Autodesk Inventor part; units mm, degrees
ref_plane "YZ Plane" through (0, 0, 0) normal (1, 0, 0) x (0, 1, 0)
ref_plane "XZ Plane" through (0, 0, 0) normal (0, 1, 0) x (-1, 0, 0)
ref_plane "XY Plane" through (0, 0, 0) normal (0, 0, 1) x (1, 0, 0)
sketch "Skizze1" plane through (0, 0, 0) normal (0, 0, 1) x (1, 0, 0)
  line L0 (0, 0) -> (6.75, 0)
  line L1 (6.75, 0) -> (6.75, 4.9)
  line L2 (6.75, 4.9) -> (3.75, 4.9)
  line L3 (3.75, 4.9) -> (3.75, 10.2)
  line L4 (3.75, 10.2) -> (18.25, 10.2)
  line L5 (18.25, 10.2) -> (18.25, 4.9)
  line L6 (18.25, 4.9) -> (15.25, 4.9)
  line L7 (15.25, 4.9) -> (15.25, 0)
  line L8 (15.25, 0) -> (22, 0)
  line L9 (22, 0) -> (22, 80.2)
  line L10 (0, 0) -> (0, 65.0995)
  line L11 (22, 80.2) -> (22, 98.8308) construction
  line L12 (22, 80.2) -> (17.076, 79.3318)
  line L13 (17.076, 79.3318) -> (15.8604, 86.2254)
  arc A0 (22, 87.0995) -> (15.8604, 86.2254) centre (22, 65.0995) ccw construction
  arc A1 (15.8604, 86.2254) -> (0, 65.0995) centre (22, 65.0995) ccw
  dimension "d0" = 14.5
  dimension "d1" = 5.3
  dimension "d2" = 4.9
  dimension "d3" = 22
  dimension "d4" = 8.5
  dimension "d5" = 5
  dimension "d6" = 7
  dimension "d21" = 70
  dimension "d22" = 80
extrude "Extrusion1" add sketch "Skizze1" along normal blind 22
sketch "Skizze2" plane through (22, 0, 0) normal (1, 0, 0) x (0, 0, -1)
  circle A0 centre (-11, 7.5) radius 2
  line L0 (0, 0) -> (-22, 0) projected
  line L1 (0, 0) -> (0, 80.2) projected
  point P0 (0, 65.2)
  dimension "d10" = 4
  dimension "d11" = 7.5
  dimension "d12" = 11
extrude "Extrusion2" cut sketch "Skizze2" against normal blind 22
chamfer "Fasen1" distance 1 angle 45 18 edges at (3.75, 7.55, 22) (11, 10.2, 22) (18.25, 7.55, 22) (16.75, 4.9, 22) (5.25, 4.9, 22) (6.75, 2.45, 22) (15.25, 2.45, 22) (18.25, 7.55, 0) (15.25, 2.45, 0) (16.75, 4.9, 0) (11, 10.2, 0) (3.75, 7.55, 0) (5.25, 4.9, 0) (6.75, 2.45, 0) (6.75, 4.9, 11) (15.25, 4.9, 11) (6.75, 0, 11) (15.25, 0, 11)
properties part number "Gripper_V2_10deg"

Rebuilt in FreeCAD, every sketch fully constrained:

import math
import FreeCAD as App
import Part
import Sketcher

V = App.Vector
Q = App.Units.Quantity


def edges_at(feature, points):
    """Names of the edges that pass closest to the given points."""
    edges = feature.Shape.Edges
    near = lambda p: min(range(len(edges)), key=lambda i: edges[i].distToShape(Part.Vertex(*p))[0])
    return sorted({f"Edge{near(p) + 1}" for p in points})

doc = App.newDocument("Part")
body = doc.addObject("PartDesign::Body", "Body")

# Sketch on XY plane
sketch1 = doc.addObject("Sketcher::SketchObject", "Sketch")
body.addObject(sketch1)
sketch1.AttachmentSupport = (doc.XY_Plane, [""])
sketch1.MapMode = "FlatFace"
sketch1.addGeometry(Part.LineSegment(V(0, 65.1, 0), V(0, 0, 0)), False)
sketch1.addGeometry(Part.LineSegment(V(0, 0, 0), V(6.8, 0, 0)), False)
sketch1.addGeometry(Part.LineSegment(V(6.8, 0, 0), V(6.8, 4.9, 0)), False)
sketch1.addGeometry(Part.LineSegment(V(6.8, 4.9, 0), V(3.8, 4.9, 0)), False)
sketch1.addGeometry(Part.LineSegment(V(3.8, 4.9, 0), V(3.8, 10.2, 0)), False)
sketch1.addGeometry(Part.LineSegment(V(3.8, 10.2, 0), V(18.2, 10.2, 0)), False)
sketch1.addGeometry(Part.LineSegment(V(18.2, 10.2, 0), V(18.2, 4.9, 0)), False)
sketch1.addGeometry(Part.LineSegment(V(18.2, 4.9, 0), V(15.2, 4.9, 0)), False)
sketch1.addGeometry(Part.LineSegment(V(15.2, 4.9, 0), V(15.2, 0, 0)), False)
sketch1.addGeometry(Part.LineSegment(V(15.2, 0, 0), V(22, 0, 0)), False)
sketch1.addGeometry(Part.LineSegment(V(22, 0, 0), V(22, 80.2, 0)), False)
sketch1.addGeometry(Part.LineSegment(V(22, 80.2, 0), V(17.1, 79.3, 0)), False)
sketch1.addGeometry(Part.LineSegment(V(17.1, 79.3, 0), V(15.9, 86.2, 0)), False)
sketch1.addGeometry(Part.ArcOfCircle(Part.Circle(V(22, 65.1, 0), V(0, 0, 1), 22), math.radians(106), math.radians(180)), False)
sketch1.addConstraint(Sketcher.Constraint("Coincident", 0, 2, 1, 1))
sketch1.addConstraint(Sketcher.Constraint("Coincident", 1, 2, 2, 1))
sketch1.addConstraint(Sketcher.Constraint("Coincident", 2, 2, 3, 1))
sketch1.addConstraint(Sketcher.Constraint("Coincident", 3, 2, 4, 1))
sketch1.addConstraint(Sketcher.Constraint("Coincident", 4, 2, 5, 1))
sketch1.addConstraint(Sketcher.Constraint("Coincident", 5, 2, 6, 1))
sketch1.addConstraint(Sketcher.Constraint("Coincident", 6, 2, 7, 1))
sketch1.addConstraint(Sketcher.Constraint("Coincident", 7, 2, 8, 1))
sketch1.addConstraint(Sketcher.Constraint("Coincident", 8, 2, 9, 1))
sketch1.addConstraint(Sketcher.Constraint("Coincident", 9, 2, 10, 1))
sketch1.addConstraint(Sketcher.Constraint("Coincident", 10, 2, 11, 1))
sketch1.addConstraint(Sketcher.Constraint("Coincident", 11, 2, 12, 1))
sketch1.addConstraint(Sketcher.Constraint("Coincident", 12, 2, 13, 1))
sketch1.addConstraint(Sketcher.Constraint("Tangent", 13, 2, 0, 1))
sketch1.addConstraint(Sketcher.Constraint("Vertical", 0))
sketch1.addConstraint(Sketcher.Constraint("Horizontal", 1))
sketch1.addConstraint(Sketcher.Constraint("Vertical", 2))
sketch1.addConstraint(Sketcher.Constraint("Horizontal", 3))
sketch1.addConstraint(Sketcher.Constraint("Vertical", 4))
sketch1.addConstraint(Sketcher.Constraint("Horizontal", 5))
sketch1.addConstraint(Sketcher.Constraint("Vertical", 6))
sketch1.addConstraint(Sketcher.Constraint("Horizontal", 7))
sketch1.addConstraint(Sketcher.Constraint("Vertical", 8))
sketch1.addConstraint(Sketcher.Constraint("Horizontal", 9))
sketch1.addConstraint(Sketcher.Constraint("Vertical", 10))
sketch1.addConstraint(Sketcher.Constraint("Coincident", 0, 2, -1, 1))
sketch1.addConstraint(Sketcher.Constraint("PointOnObject", 8, 2, -1))
sketch1.addConstraint(Sketcher.Constraint("Perpendicular", 11, 12))
sketch1.addConstraint(Sketcher.Constraint("Horizontal", 3, 2, 6, 2))
sketch1.addConstraint(Sketcher.Constraint("Vertical", 13, 3, 9, 2))
sketch1.addConstraint(Sketcher.Constraint("Equal", 3, 7))
sketch1.addConstraint(Sketcher.Constraint("Equal", 1, 9))
sketch1.addConstraint(Sketcher.Constraint("Radius", 13, 22.0))
sketch1.addConstraint(Sketcher.Constraint("Distance", 11, 5.0))
sketch1.addConstraint(Sketcher.Constraint("Distance", 12, 7.0))
sketch1.addConstraint(Sketcher.Constraint("DistanceX", 5, 1, 5, 2, 14.5))
sketch1.addConstraint(Sketcher.Constraint("DistanceY", 2, 1, 2, 2, 4.9))
sketch1.addConstraint(Sketcher.Constraint("DistanceY", 4, 1, 4, 2, 5.3))
sketch1.addConstraint(Sketcher.Constraint("DistanceY", 5, 2, 10, 2, 70.0))
sketch1.addConstraint(Sketcher.Constraint("DistanceX", 2, 2, 7, 2, 8.5))
sketch1.addConstraint(Sketcher.Constraint("Angle", 11, Q("-170.0004 deg")))
pad1 = doc.addObject("PartDesign::Pad", "Pad")
body.addObject(pad1)
pad1.Profile = sketch1
pad1.Length = 22

# Sketch on YZ plane
sketch2 = doc.addObject("Sketcher::SketchObject", "Sketch001")
body.addObject(sketch2)
sketch2.AttachmentSupport = (doc.YZ_Plane, [""])
sketch2.MapMode = "FlatFace"
sketch2.AttachmentOffset = App.Placement(V(0, 0, 22), App.Rotation())
sketch2.addGeometry(Part.Circle(V(7.5, 11, 0), V(0, 0, 1), 2), False)
sketch2.addConstraint(Sketcher.Constraint("Diameter", 0, 4.0))
sketch2.addConstraint(Sketcher.Constraint("DistanceY", -1, 1, 0, 3, 11.0))
sketch2.addConstraint(Sketcher.Constraint("DistanceX", -1, 1, 0, 3, 7.5))
pocket1 = doc.addObject("PartDesign::Pocket", "Pocket")
body.addObject(pocket1)
pocket1.Profile = sketch2
pocket1.Length = 22
doc.recompute()

chamfer = doc.addObject("PartDesign::Chamfer", "Chamfer")
body.addObject(chamfer)
chamfer.Base = (pocket1, edges_at(pocket1, [
    (3.75, 7.55, 22),
    (11, 10.2, 22),
    (18.25, 7.55, 22),
    (16.75, 4.9, 22),
    (5.25, 4.9, 22),
    (6.75, 2.45, 22),
    (15.25, 2.45, 22),
    (18.25, 7.55, 0),
    (15.25, 2.45, 0),
    (16.75, 4.9, 0),
    (11, 10.2, 0),
    (3.75, 7.55, 0),
    (5.25, 4.9, 0),
    (6.75, 2.45, 0),
    (6.75, 4.9, 11),
    (15.25, 4.9, 11),
    (6.75, 0, 11),
    (15.25, 0, 11),
]))
chamfer.Size = 1

doc.recompute()
